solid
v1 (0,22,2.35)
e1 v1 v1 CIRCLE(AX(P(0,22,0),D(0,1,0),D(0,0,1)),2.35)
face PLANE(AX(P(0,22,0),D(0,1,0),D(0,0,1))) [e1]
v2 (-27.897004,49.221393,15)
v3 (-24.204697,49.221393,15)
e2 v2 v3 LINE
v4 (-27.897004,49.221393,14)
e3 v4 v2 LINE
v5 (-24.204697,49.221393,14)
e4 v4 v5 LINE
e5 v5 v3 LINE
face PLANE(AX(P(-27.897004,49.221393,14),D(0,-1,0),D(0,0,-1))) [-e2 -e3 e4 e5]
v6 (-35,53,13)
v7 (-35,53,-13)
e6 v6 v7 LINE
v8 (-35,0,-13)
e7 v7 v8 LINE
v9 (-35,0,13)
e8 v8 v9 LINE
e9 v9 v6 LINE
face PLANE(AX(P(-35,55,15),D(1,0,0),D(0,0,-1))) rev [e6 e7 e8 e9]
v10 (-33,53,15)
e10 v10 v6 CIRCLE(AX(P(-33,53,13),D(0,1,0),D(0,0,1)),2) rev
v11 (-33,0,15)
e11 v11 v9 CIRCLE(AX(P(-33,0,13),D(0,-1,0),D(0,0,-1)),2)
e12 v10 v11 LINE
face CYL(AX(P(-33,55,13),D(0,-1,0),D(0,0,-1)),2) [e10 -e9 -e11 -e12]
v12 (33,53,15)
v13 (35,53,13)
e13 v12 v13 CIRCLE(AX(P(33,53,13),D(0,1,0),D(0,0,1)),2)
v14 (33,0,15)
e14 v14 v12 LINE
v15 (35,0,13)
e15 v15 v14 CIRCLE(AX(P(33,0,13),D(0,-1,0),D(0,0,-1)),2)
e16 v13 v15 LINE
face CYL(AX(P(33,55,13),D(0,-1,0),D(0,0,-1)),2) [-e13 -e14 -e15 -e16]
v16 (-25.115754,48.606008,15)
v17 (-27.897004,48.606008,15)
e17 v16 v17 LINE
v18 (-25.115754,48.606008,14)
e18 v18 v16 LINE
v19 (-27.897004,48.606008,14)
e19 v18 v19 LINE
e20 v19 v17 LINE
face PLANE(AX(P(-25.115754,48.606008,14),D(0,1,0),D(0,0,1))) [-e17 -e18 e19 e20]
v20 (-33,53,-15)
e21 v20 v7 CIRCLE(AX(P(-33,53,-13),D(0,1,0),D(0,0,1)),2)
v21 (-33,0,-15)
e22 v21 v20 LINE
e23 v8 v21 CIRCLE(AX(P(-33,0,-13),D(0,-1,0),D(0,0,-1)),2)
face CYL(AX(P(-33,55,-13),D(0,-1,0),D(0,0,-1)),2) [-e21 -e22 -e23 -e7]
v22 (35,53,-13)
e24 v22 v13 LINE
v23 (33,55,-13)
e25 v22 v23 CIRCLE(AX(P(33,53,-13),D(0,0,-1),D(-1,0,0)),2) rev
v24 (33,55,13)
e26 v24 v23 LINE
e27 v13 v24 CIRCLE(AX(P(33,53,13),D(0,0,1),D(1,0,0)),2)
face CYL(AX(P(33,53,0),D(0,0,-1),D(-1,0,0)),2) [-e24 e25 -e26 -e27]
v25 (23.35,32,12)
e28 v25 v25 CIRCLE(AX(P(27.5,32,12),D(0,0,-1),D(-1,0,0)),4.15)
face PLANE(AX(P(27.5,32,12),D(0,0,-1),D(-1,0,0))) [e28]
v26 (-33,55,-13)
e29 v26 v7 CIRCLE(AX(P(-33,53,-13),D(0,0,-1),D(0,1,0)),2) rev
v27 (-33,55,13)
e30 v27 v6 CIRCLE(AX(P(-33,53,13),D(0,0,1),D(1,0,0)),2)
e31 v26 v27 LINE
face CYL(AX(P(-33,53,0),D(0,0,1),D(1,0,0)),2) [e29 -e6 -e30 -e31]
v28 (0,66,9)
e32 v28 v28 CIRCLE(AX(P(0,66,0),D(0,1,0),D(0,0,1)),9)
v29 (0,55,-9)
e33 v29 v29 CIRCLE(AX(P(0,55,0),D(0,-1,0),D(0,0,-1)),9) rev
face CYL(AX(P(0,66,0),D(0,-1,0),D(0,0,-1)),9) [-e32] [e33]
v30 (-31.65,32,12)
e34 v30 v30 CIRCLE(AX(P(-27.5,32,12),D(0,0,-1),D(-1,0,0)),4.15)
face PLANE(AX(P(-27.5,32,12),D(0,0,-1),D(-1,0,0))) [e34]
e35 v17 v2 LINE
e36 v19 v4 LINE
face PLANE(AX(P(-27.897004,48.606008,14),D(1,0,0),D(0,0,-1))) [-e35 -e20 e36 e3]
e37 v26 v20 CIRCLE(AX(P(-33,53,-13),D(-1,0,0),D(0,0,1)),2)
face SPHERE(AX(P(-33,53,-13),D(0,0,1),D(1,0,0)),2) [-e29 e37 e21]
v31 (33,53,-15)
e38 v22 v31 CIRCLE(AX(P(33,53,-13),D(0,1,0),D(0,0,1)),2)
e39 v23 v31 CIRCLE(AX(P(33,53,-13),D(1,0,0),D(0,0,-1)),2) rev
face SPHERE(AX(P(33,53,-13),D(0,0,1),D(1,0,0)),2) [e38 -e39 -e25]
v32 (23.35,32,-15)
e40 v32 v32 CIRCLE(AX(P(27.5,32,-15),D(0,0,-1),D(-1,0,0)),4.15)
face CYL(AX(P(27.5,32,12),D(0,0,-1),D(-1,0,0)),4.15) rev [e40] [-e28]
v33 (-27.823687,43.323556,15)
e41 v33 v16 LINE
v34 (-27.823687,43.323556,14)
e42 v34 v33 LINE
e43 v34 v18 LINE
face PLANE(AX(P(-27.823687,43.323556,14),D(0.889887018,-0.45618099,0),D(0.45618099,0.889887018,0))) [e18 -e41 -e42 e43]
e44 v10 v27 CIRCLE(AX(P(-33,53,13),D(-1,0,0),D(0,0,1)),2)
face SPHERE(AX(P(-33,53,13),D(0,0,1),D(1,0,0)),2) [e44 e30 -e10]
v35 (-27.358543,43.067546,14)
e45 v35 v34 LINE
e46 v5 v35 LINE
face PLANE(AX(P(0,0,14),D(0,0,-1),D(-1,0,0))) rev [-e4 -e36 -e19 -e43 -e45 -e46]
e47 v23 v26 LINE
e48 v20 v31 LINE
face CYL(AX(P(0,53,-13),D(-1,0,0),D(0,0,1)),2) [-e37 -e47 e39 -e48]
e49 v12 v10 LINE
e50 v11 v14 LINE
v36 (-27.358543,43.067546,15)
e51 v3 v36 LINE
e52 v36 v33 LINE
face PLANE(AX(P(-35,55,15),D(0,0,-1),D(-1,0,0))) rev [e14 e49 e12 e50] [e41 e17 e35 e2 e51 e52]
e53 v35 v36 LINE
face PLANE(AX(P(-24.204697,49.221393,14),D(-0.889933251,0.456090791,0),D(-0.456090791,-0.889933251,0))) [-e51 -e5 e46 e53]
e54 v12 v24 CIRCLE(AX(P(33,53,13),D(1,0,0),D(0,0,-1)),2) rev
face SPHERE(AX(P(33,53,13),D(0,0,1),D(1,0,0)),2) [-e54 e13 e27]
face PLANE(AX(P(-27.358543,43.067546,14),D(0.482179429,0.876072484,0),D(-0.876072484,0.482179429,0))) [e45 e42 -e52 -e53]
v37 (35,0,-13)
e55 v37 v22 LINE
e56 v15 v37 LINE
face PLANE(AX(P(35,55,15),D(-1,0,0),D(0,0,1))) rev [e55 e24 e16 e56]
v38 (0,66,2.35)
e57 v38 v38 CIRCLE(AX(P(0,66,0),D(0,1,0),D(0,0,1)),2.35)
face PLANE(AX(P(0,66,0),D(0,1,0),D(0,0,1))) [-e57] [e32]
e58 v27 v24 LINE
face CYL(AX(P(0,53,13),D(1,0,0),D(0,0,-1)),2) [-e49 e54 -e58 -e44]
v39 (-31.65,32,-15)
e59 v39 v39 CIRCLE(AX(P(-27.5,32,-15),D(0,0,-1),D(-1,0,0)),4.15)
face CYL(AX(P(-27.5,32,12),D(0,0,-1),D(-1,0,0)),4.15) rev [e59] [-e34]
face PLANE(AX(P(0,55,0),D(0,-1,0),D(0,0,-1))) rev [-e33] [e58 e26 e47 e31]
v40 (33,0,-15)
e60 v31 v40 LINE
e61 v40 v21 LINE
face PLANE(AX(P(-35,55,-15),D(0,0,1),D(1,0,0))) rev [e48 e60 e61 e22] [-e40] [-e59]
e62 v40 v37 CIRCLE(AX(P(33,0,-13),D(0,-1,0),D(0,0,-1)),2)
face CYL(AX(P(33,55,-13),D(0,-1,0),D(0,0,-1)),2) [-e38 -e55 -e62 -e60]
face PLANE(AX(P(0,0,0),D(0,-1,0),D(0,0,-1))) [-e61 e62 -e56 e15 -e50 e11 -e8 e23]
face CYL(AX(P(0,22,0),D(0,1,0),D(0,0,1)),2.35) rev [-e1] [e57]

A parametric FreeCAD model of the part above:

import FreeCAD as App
import Part
import Sketcher
Q = App.Units.Quantity


def edges_at(feature, points):
    """Names of the edges that pass closest to the given points."""
    edges = feature.Shape.Edges
    near = lambda p: min(range(len(edges)), key=lambda i: edges[i].distToShape(Part.Vertex(*p))[0])
    return sorted({f"Edge{near(p) + 1}" for p in points})


def add_polygon(sketch, points):
    """Adds a closed chain of lines whose ends are joined by coincident constraints."""
    first, n = sketch.GeometryCount, len(points)
    for a, b in zip(points, points[1:] + points[:1]):
        sketch.addGeometry(Part.LineSegment(App.Vector(*a, 0), App.Vector(*b, 0)), False)
    for i in range(n):
        sketch.addConstraint(Sketcher.Constraint("Coincident", first + i, 2, first + (i + 1) % n, 1))

doc = App.newDocument("Part")
body = doc.addObject("PartDesign::Body", "Body")

# Sketch on XZ plane
sketch1 = body.newObject("Sketcher::SketchObject", "Sketch")
sketch1.AttachmentSupport = (doc.getObject("XZ_Plane"), [""])
sketch1.MapMode = "FlatFace"
add_polygon(sketch1, [(-35, -15), (-35, 15), (35, 15), (35, -15)])  # lines 0-3
sketch1.addConstraint([
    Sketcher.Constraint("Vertical", 0),
    Sketcher.Constraint("Horizontal", 1),
    Sketcher.Constraint("Vertical", 2),
    Sketcher.Constraint("Horizontal", 3),
    Sketcher.Constraint("Symmetric", 0, 2, 2, 2, -1, 1),
    Sketcher.Constraint("DistanceX", 1, 1, 1, 2, Q("70 mm")),
    Sketcher.Constraint("DistanceY", 0, 1, 0, 2, Q("30 mm")),
])
pad1 = body.newObject("PartDesign::Pad", "Pad")
pad1.Profile = sketch1
pad1.Length = 55
pad1.Reversed = True

# Sketch on XY plane
sketch2 = body.newObject("Sketcher::SketchObject", "Sketch001")
sketch2.AttachmentSupport = (doc.getObject("XY_Plane"), [""])
sketch2.MapMode = "FlatFace"
sketch2.AttachmentOffset = App.Placement(App.Vector(0, 0, -15), App.Rotation())
sketch2.addGeometry([
    Part.Circle(App.Vector(27.5, 32, 0), App.Vector(0, 0, 1), 4.15),
    Part.Circle(App.Vector(-27.5, 32, 0), App.Vector(0, 0, 1), 4.15),
], False)
sketch2.addConstraint([
    Sketcher.Constraint("Equal", 0, 1),
    Sketcher.Constraint("Symmetric", 0, 3, 1, 3, -2),
    Sketcher.Constraint("Diameter", 0, Q("8.3 mm")),
    Sketcher.Constraint("DistanceY", -1, 1, 0, 3, Q("32 mm")),
    Sketcher.Constraint("DistanceX", 1, 3, 0, 3, Q("55 mm")),
])
pocket1 = body.newObject("PartDesign::Pocket", "Pocket")
pocket1.Profile = sketch2
pocket1.Length = 27
pocket1.Reversed = True
doc.recompute()

fillet = body.newObject("PartDesign::Fillet", "Fillet")
fillet.Base = (pocket1, edges_at(pocket1, [
    (-35, 55, 0),
    (0, 55, 15),
    (35, 55, 0),
    (0, 55, -15),
    (35, 27.5, 15),
    (-35, 27.5, 15),
    (-35, 27.5, -15),
    (35, 27.5, -15),
]))
fillet.Radius = 2

# Sketch on XY plane
sketch3 = body.newObject("Sketcher::SketchObject", "Sketch002")
sketch3.AttachmentSupport = (doc.getObject("XY_Plane"), [""])
sketch3.MapMode = "FlatFace"
sketch3.AttachmentOffset = App.Placement(App.Vector(0, 0, 15), App.Rotation())
add_polygon(sketch3, [(-24.204697, 49.221393), (-27.897004, 49.221393), (-27.897004, 48.606008), (-25.115754, 48.606008), (-27.823687, 43.323556), (-27.358543, 43.067546)])  # lines 0-5
sketch3.addConstraint([
    Sketcher.Constraint("Horizontal", 0),
    Sketcher.Constraint("Vertical", 1),
    Sketcher.Constraint("Horizontal", 2),
    Sketcher.Constraint("DistanceX", 2, 1, 2, 2, Q("2.78125 mm")),
    Sketcher.Constraint("DistanceX", 0, 2, 0, 1, Q("3.692308 mm")),
    Sketcher.Constraint("DistanceY", 1, 2, 1, 1, Q("0.615385 mm")),
    Sketcher.Constraint("DistanceY", 3, 2, 1, 2, Q("5.282452 mm")),
    Sketcher.Constraint("DistanceY", 4, 2, 3, 2, Q("0.25601 mm")),
    Sketcher.Constraint("DistanceX", 1, 2, 4, 2, Q("0.538462 mm")),
    Sketcher.Constraint("DistanceX", 3, 2, 5, 2, Q("3.61899 mm")),
    Sketcher.Constraint("DistanceX", 0, 2, -1, 1, Q("27.897004 mm")),
    Sketcher.Constraint("DistanceY", -1, 1, 0, 2, Q("49.221393 mm")),
])
pocket2 = body.newObject("PartDesign::Pocket", "Pocket001")
pocket2.Profile = sketch3
pocket2.Length = 1

# Sketch on XZ plane
sketch4 = body.newObject("Sketcher::SketchObject", "Sketch003")
sketch4.AttachmentSupport = (doc.getObject("XZ_Plane"), [""])
sketch4.MapMode = "FlatFace"
sketch4.AttachmentOffset = App.Placement(App.Vector(0, 0, -55), App.Rotation())
sketch4.addGeometry(Part.Circle(App.Vector(0, 0, 0), App.Vector(0, 0, 1), 9), False)
sketch4.addConstraint([
    Sketcher.Constraint("Coincident", 0, 3, -1, 1),
    Sketcher.Constraint("Diameter", 0, Q("18 mm")),
])
pad2 = body.newObject("PartDesign::Pad", "Pad001")
pad2.Profile = sketch4
pad2.Length = 11
pad2.Reversed = True

# Sketch on XZ plane
sketch5 = body.newObject("Sketcher::SketchObject", "Sketch004")
sketch5.AttachmentSupport = (doc.getObject("XZ_Plane"), [""])
sketch5.MapMode = "FlatFace"
sketch5.AttachmentOffset = App.Placement(App.Vector(0, 0, -66), App.Rotation())
sketch5.addGeometry(Part.Circle(App.Vector(0, 0, 0), App.Vector(0, 0, 1), 2.35), False)
sketch5.addConstraint([
    Sketcher.Constraint("Coincident", 0, 3, -1, 1),
    Sketcher.Constraint("Diameter", 0, Q("4.7 mm")),
])
pocket3 = body.newObject("PartDesign::Pocket", "Pocket002")
pocket3.Profile = sketch5
pocket3.Length = 44
pocket3.Reversed = True

doc.recompute()
